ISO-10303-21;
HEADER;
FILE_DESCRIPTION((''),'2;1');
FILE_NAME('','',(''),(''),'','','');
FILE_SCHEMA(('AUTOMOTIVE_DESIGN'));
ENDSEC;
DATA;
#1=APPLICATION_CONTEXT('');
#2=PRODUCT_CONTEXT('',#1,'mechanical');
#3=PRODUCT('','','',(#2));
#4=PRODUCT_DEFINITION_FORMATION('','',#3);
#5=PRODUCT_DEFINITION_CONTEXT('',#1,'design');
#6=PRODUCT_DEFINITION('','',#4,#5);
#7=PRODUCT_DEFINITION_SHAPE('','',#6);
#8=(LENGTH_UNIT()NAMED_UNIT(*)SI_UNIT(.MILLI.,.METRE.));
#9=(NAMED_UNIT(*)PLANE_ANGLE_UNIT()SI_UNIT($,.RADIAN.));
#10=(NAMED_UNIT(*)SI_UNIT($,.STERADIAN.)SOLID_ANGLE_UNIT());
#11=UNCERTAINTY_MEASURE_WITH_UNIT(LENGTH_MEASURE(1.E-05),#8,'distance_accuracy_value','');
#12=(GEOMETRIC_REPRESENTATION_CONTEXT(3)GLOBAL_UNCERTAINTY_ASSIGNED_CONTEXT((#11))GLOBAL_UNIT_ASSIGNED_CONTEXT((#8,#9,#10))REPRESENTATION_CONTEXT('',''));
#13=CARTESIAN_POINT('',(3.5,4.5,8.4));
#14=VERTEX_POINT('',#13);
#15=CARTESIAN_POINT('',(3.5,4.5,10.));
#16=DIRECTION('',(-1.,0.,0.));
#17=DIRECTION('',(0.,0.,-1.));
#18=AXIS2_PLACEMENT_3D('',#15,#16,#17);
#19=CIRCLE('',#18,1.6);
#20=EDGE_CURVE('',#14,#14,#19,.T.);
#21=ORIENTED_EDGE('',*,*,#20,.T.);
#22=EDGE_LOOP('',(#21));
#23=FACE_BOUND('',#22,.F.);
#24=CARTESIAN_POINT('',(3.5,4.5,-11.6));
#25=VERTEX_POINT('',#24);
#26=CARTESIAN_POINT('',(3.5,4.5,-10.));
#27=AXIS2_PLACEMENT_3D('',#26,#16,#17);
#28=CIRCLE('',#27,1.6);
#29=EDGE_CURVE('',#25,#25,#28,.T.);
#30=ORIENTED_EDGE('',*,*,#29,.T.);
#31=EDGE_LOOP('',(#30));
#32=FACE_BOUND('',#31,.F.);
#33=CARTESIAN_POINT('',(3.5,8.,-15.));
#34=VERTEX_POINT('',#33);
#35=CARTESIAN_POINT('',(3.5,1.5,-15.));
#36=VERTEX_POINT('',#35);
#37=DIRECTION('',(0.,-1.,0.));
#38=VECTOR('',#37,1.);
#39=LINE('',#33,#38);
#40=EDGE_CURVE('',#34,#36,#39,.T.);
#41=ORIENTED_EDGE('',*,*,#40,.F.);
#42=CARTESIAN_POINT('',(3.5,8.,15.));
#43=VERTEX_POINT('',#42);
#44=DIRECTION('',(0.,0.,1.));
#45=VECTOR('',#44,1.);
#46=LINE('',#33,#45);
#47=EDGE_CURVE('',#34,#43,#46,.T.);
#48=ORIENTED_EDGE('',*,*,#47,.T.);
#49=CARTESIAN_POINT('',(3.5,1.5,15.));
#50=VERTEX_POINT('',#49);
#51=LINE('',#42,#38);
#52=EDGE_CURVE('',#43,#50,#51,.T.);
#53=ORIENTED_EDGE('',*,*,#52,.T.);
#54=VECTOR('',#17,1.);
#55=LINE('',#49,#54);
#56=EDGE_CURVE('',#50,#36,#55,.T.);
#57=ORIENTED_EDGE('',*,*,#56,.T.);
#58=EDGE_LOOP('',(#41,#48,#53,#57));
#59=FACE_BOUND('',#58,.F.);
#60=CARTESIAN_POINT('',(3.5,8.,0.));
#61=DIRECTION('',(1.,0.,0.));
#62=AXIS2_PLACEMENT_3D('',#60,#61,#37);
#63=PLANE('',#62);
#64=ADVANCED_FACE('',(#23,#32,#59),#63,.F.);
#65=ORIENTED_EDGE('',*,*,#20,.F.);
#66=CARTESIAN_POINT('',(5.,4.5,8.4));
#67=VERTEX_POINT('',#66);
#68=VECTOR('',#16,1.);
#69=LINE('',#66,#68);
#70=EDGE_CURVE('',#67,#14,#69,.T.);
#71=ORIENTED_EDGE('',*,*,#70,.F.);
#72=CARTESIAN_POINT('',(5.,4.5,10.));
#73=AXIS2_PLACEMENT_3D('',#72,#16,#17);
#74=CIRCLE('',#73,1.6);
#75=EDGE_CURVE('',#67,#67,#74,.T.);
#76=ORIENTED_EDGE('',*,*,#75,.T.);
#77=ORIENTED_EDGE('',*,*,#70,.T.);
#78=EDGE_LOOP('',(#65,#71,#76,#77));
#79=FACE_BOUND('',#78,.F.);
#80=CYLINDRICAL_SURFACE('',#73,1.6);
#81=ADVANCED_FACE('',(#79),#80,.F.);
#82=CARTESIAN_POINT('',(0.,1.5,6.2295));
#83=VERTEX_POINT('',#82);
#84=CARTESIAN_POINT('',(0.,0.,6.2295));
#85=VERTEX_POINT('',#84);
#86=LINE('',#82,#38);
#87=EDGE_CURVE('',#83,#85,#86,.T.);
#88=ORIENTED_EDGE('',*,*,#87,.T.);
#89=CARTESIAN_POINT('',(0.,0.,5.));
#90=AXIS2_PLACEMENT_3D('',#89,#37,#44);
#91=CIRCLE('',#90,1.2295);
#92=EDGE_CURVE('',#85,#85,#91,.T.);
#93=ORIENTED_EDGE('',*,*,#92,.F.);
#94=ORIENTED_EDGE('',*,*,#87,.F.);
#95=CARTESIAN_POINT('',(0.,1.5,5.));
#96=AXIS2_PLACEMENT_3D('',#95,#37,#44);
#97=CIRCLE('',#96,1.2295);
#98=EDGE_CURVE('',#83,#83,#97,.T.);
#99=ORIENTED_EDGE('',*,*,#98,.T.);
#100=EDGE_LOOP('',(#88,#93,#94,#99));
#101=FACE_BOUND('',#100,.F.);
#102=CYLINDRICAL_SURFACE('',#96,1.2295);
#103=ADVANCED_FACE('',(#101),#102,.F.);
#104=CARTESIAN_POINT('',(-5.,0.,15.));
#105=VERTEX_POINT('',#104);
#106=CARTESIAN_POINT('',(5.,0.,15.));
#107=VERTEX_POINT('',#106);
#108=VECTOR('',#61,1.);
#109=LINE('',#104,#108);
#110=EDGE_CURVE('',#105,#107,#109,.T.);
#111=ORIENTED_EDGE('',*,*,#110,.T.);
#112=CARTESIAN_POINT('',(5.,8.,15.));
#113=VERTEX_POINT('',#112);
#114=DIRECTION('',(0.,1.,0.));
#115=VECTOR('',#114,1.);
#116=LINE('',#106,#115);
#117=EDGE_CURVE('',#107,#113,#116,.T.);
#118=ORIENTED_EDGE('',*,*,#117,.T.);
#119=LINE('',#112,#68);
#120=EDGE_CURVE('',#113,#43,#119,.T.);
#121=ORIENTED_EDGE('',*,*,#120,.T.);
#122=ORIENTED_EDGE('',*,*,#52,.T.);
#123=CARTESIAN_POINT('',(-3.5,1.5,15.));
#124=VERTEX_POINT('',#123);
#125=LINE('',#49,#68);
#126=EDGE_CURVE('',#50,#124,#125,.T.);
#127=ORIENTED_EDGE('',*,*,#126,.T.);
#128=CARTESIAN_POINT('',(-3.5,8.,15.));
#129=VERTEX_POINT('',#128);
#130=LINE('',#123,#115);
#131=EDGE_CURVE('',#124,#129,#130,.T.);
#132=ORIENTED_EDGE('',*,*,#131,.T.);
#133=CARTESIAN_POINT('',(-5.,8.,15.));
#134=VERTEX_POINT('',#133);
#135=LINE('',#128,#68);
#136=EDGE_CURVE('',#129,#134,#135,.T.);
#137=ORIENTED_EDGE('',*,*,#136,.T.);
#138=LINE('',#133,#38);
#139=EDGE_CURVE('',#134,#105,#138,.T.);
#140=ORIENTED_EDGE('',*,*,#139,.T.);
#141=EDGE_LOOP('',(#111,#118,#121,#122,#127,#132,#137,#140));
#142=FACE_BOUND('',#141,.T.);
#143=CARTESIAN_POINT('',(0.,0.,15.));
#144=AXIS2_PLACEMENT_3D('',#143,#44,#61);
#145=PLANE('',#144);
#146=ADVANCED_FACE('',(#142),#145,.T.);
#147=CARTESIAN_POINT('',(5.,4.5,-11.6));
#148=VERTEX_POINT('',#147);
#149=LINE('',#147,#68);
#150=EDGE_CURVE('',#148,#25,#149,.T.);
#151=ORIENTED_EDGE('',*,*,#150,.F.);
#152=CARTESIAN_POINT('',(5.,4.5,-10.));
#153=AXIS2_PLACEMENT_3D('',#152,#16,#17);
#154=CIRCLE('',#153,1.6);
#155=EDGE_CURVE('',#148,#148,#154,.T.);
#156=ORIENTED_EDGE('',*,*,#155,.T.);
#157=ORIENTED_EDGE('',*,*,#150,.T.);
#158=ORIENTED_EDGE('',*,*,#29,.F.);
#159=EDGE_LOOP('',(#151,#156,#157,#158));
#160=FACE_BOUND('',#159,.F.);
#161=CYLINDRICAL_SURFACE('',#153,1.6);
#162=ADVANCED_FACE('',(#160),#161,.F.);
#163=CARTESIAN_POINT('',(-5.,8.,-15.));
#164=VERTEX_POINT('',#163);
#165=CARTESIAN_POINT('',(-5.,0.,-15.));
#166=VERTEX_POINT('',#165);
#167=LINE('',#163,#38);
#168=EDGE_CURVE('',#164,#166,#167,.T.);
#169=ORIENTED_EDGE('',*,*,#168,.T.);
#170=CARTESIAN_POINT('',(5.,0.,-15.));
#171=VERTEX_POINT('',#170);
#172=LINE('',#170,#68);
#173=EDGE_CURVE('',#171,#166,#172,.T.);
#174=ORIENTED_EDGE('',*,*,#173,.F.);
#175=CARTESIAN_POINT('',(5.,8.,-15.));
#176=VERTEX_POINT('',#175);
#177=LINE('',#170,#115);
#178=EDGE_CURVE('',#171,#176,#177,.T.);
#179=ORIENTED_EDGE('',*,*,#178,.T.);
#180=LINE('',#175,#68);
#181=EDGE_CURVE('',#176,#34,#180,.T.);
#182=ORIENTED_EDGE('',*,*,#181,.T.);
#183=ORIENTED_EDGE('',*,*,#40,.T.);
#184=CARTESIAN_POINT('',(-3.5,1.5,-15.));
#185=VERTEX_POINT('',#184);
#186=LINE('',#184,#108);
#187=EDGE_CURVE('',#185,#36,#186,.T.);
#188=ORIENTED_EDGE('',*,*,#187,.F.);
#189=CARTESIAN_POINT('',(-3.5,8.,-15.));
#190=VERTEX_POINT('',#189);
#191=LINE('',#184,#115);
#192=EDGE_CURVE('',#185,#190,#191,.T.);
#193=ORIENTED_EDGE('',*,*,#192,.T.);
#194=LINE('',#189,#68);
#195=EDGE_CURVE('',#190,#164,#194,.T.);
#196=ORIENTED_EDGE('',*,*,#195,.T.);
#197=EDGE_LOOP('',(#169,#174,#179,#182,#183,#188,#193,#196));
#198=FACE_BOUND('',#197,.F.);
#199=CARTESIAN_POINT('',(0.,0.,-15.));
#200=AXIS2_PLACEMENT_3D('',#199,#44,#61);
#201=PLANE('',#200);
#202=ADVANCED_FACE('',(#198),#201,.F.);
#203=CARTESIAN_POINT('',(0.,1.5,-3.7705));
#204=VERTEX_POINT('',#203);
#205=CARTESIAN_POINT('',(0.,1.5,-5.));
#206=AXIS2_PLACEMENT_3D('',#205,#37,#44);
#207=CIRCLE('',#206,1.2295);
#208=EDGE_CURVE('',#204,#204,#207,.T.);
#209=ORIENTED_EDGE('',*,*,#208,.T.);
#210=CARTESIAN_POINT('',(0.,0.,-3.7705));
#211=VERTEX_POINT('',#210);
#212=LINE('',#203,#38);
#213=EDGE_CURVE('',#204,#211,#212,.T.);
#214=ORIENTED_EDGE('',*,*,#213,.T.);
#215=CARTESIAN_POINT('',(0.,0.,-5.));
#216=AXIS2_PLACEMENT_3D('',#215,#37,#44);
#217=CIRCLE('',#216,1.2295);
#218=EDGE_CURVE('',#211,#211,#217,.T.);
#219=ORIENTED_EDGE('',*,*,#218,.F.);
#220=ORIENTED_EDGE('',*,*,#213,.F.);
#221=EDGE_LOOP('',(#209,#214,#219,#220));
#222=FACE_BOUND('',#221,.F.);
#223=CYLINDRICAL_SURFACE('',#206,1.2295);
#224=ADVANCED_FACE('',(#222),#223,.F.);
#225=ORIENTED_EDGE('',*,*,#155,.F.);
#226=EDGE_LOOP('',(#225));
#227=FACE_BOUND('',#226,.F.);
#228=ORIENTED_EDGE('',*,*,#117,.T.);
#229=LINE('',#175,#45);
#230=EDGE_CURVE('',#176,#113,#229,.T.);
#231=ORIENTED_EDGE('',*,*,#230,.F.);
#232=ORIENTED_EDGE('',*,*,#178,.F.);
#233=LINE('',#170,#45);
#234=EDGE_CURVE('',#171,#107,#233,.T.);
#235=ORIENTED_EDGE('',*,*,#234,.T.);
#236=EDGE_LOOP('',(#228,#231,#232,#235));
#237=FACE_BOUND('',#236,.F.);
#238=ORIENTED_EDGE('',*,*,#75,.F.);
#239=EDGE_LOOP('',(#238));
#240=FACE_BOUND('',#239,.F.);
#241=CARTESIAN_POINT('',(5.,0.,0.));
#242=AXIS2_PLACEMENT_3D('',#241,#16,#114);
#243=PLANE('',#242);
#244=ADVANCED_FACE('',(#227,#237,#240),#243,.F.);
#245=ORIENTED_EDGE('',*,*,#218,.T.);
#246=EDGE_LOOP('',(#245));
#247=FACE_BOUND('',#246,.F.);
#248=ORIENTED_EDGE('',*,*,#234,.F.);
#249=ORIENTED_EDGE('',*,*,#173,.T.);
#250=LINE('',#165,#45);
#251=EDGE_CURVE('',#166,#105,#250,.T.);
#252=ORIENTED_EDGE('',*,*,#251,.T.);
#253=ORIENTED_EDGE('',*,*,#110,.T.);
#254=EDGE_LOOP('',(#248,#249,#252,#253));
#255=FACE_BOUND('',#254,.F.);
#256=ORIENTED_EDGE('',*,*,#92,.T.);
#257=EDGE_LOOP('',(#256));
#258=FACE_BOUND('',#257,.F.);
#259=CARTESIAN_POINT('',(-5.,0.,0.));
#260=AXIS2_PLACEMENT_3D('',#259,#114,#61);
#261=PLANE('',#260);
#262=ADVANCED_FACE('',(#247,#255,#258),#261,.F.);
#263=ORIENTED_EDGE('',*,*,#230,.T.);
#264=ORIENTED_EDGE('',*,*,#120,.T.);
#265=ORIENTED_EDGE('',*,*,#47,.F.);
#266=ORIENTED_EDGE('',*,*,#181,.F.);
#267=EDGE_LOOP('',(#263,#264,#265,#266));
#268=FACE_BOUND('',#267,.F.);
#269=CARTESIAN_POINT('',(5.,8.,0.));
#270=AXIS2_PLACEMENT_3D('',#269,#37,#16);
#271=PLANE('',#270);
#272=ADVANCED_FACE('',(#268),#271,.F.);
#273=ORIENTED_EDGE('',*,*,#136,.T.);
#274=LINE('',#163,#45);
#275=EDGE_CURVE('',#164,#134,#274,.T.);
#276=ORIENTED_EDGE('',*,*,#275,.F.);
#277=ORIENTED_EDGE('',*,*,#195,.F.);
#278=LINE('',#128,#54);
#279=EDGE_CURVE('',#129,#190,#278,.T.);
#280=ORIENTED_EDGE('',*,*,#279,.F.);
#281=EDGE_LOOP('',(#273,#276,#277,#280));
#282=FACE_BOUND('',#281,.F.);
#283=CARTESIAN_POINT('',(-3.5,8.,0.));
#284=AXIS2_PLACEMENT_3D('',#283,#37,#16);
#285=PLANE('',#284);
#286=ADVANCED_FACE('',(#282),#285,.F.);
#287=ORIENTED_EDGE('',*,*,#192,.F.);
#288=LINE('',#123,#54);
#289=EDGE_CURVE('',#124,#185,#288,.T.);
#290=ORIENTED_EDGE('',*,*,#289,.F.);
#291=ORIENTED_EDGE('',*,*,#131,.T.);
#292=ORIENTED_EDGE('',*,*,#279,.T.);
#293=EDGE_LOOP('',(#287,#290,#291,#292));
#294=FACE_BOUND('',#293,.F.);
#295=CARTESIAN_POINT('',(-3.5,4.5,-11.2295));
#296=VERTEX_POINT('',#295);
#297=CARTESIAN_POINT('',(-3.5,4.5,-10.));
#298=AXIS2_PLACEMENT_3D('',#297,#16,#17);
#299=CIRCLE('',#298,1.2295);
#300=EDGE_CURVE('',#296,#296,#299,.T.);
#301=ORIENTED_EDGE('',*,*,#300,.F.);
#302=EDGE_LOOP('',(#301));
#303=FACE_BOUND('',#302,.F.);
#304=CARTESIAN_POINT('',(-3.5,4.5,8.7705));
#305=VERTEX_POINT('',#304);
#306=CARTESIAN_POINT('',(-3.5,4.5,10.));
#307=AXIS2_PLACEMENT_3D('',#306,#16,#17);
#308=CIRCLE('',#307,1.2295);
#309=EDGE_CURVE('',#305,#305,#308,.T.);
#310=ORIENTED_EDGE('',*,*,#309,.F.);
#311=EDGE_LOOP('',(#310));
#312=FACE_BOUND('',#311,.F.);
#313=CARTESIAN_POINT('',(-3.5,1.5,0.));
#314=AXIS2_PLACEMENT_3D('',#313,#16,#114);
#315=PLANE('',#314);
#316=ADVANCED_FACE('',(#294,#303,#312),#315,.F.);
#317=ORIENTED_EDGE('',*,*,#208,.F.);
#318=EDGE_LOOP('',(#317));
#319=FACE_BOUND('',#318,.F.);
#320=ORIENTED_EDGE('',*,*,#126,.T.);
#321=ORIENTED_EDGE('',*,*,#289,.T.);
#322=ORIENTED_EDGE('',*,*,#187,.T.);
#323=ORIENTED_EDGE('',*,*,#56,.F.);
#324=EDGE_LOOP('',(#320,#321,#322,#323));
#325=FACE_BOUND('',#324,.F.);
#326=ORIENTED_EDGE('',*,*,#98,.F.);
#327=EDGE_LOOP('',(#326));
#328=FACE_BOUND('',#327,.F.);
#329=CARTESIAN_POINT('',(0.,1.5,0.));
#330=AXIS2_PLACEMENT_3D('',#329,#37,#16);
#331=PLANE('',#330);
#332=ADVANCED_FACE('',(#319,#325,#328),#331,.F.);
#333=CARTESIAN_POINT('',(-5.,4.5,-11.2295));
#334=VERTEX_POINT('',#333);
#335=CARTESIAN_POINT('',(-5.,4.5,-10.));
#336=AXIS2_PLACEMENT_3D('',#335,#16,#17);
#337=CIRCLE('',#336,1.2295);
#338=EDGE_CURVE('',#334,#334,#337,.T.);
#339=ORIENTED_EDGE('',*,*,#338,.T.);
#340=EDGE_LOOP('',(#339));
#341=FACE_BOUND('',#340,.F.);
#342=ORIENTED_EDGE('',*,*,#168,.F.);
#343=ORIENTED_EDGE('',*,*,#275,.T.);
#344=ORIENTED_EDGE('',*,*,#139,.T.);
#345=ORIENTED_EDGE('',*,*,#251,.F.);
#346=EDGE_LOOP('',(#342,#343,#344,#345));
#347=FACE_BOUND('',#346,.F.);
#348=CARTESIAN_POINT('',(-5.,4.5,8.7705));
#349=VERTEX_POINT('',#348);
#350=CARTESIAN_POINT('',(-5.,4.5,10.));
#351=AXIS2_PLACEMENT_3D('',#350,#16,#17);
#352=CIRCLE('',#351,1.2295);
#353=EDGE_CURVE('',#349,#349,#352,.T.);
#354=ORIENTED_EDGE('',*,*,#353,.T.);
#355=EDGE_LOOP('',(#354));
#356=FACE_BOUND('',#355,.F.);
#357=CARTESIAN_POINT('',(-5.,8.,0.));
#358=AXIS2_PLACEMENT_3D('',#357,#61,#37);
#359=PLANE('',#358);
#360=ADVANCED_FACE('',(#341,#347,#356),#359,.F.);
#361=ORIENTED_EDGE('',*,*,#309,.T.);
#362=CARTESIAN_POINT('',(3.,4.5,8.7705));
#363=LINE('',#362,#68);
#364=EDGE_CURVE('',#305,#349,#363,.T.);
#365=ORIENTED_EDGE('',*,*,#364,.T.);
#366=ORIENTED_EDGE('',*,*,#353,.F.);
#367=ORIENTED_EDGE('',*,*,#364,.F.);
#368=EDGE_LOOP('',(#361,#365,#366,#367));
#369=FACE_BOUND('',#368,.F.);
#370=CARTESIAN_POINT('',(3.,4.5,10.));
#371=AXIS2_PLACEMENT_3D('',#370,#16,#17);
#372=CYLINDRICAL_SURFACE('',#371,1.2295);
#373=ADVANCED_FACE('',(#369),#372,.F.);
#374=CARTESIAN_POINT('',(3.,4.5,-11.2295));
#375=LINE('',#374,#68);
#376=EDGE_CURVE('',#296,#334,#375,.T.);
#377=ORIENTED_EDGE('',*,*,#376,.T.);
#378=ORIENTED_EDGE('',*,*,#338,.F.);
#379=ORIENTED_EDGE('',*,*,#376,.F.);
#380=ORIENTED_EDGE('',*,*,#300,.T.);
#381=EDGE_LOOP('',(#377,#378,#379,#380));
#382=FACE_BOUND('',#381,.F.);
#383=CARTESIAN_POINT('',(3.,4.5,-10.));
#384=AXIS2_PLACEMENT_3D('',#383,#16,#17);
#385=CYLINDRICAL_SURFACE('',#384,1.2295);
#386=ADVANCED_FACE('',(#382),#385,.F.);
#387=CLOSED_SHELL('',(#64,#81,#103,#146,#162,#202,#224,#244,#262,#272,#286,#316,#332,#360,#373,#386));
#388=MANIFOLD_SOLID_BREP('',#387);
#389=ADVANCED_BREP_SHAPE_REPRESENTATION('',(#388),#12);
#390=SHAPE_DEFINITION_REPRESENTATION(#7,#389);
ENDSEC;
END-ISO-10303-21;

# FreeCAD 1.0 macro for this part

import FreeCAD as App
import Part
import Sketcher
from FreeCAD import Vector
Q = App.Units.Quantity

doc = App.newDocument("Part")
body = doc.addObject("PartDesign::Body", "Body")

sketch1 = doc.addObject("Sketcher::SketchObject", "Sketch")
body.addObject(sketch1)
sketch1.AttachmentSupport = (doc.XY_Plane, [""])
sketch1.MapMode = "FlatFace"
sketch1.addGeometry(Part.LineSegment(Vector(-3.5, 8, 0), Vector(-5, 8, 0)), False)
sketch1.addGeometry(Part.LineSegment(Vector(-5, 8, 0), Vector(-5, 0, 0)), False)
sketch1.addGeometry(Part.LineSegment(Vector(-5, 0, 0), Vector(5, 0, 0)), False)
sketch1.addGeometry(Part.LineSegment(Vector(5, 0, 0), Vector(5, 8, 0)), False)
sketch1.addGeometry(Part.LineSegment(Vector(5, 8, 0), Vector(3.5, 8, 0)), False)
sketch1.addGeometry(Part.LineSegment(Vector(3.5, 8, 0), Vector(3.5, 1.5, 0)), False)
sketch1.addGeometry(Part.LineSegment(Vector(3.5, 1.5, 0), Vector(-3.5, 1.5, 0)), False)
sketch1.addGeometry(Part.LineSegment(Vector(-3.5, 1.5, 0), Vector(-3.5, 8, 0)), False)
sketch1.addConstraint(Sketcher.Constraint("Coincident", 0, 2, 1, 1))
sketch1.addConstraint(Sketcher.Constraint("Coincident", 1, 2, 2, 1))
sketch1.addConstraint(Sketcher.Constraint("Coincident", 2, 2, 3, 1))
sketch1.addConstraint(Sketcher.Constraint("Coincident", 3, 2, 4, 1))
sketch1.addConstraint(Sketcher.Constraint("Coincident", 4, 2, 5, 1))
sketch1.addConstraint(Sketcher.Constraint("Coincident", 5, 2, 6, 1))
sketch1.addConstraint(Sketcher.Constraint("Coincident", 6, 2, 7, 1))
sketch1.addConstraint(Sketcher.Constraint("Coincident", 7, 2, 0, 1))
sketch1.addConstraint(Sketcher.Constraint("Horizontal", 0))
sketch1.addConstraint(Sketcher.Constraint("Vertical", 1))
sketch1.addConstraint(Sketcher.Constraint("Horizontal", 2))
sketch1.addConstraint(Sketcher.Constraint("Vertical", 3))
sketch1.addConstraint(Sketcher.Constraint("Horizontal", 4))
sketch1.addConstraint(Sketcher.Constraint("Vertical", 5))
sketch1.addConstraint(Sketcher.Constraint("Horizontal", 6))
sketch1.addConstraint(Sketcher.Constraint("Vertical", 7))
sketch1.addConstraint(Sketcher.Constraint("Symmetric", 1, 2, 2, 2, -1, 1))
sketch1.addConstraint(Sketcher.Constraint("Symmetric", 4, 2, 7, 2, -2))
sketch1.addConstraint(Sketcher.Constraint("DistanceX", 2, 1, 2, 2, Q("10 mm")))
sketch1.addConstraint(Sketcher.Constraint("DistanceY", 1, 2, 1, 1, Q("8 mm")))
sketch1.addConstraint(Sketcher.Constraint("DistanceX", 0, 2, 0, 1, Q("1.5 mm")))
sketch1.addConstraint(Sketcher.Constraint("DistanceY", -1, 1, 5, 2, Q("1.5 mm")))
pad1 = doc.addObject("PartDesign::Pad", "Pad")
body.addObject(pad1)
pad1.Profile = sketch1
pad1.Length = 30
pad1.Midplane = True

sketch2 = doc.addObject("Sketcher::SketchObject", "Sketch001")
body.addObject(sketch2)
sketch2.AttachmentSupport = (doc.YZ_Plane, [""])
sketch2.MapMode = "FlatFace"
sketch2.AttachmentOffset = App.Placement(Vector(0, 0, 5), App.Rotation())
sketch2.addGeometry(Part.Circle(Vector(4.5, 10, 0), Vector(0, 0, 1), 1.2295), False)
sketch2.addGeometry(Part.Circle(Vector(4.5, -10, 0), Vector(0, 0, 1), 1.2295), False)
sketch2.addConstraint(Sketcher.Constraint("Equal", 0, 1))
sketch2.addConstraint(Sketcher.Constraint("Symmetric", 0, 3, 1, 3, -1))
sketch2.addConstraint(Sketcher.Constraint("Diameter", 0, Q("2.459 mm")))
sketch2.addConstraint(Sketcher.Constraint("DistanceY", -1, 1, 0, 3, Q("10 mm")))
sketch2.addConstraint(Sketcher.Constraint("DistanceX", -1, 1, 0, 3, Q("4.5 mm")))
doc.recompute()
hole = doc.addObject("PartDesign::Hole", "Hole")
body.addObject(hole)
hole.Profile = sketch2
hole.ThreadType = "None"
hole.Diameter = 2.459
hole.DepthType = "ThroughAll"
hole.HoleCutType = "Counterbore"
hole.HoleCutDiameter = 3.2
hole.HoleCutDepth = 2

sketch3 = doc.addObject("Sketcher::SketchObject", "Sketch002")
body.addObject(sketch3)
sketch3.AttachmentSupport = (doc.XZ_Plane, [""])
sketch3.MapMode = "FlatFace"
sketch3.AttachmentOffset = App.Placement(Vector(0, 0, -1.5), App.Rotation())
sketch3.addGeometry(Part.Circle(Vector(0, 5, 0), Vector(0, 0, 1), 1.2295), False)
sketch3.addGeometry(Part.Circle(Vector(0, -5, 0), Vector(0, 0, 1), 1.2295), False)
sketch3.addConstraint(Sketcher.Constraint("Equal", 0, 1))
sketch3.addConstraint(Sketcher.Constraint("Symmetric", 0, 3, 1, 3, -1, 1))
sketch3.addConstraint(Sketcher.Constraint("PointOnObject", 0, 3, -2))
sketch3.addConstraint(Sketcher.Constraint("Diameter", 0, Q("2.459 mm")))
sketch3.addConstraint(Sketcher.Constraint("DistanceY", -1, 1, 0, 3, Q("5 mm")))
doc.recompute()
hole2 = doc.addObject("PartDesign::Hole", "Hole001")
body.addObject(hole2)
hole2.Profile = sketch3
hole2.ThreadType = "None"
hole2.Diameter = 2.459
hole2.DepthType = "ThroughAll"
hole2.Reversed = True

doc.recompute()
